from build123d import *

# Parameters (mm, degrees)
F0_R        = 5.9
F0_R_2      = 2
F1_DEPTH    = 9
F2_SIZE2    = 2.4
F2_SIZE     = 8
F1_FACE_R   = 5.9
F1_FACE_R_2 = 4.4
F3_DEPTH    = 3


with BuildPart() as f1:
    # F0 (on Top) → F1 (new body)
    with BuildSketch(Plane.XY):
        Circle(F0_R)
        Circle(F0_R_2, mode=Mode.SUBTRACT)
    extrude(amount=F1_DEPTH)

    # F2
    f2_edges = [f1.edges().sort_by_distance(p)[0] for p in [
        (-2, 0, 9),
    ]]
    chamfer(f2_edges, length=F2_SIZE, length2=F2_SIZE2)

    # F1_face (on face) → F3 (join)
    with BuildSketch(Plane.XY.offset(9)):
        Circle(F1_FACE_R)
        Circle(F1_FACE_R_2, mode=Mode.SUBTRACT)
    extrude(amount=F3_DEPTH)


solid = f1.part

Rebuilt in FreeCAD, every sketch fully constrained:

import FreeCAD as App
import Part
import Sketcher


def edges_at(feature, points):
    """Names of the edges that pass closest to the given points."""
    edges = feature.Shape.Edges
    near = lambda p: min(range(len(edges)), key=lambda i: edges[i].distToShape(Part.Vertex(*p))[0])
    return sorted({f"Edge{near(p) + 1}" for p in points})

doc = App.newDocument("Part")
params = doc.addObject("Spreadsheet::Sheet", "Params")
for row, (alias, value) in enumerate([
    ("sketch1_diameter", "4 mm"),
    ("sketch1_diameter2", "11.8 mm"),
    ("pad1_length", "9 mm"),
    ("chamfer_size", "8 mm"),
    ("chamfer_size2", "2.4 mm"),
    ("sketch2_diameter", "11.8 mm"),
    ("sketch2_diameter2", "8.8 mm"),
    ("pad2_length", "3 mm"),
], start=1):
    params.set(f"A{row}", alias)
    params.set(f"B{row}", "=" + value)
    params.setAlias(f"B{row}", alias)

body = doc.addObject("PartDesign::Body", "Body")

# Sketch on XY plane
sketch1 = doc.addObject("Sketcher::SketchObject", "Sketch")
body.addObject(sketch1)
sketch1.AttachmentSupport = (doc.XY_Plane, [""])
sketch1.MapMode = "FlatFace"
sketch1.addGeometry(Part.Circle(App.Vector(0, 0, 0), App.Vector(0, 0, 1), 5.9), False)
sketch1.addGeometry(Part.Circle(App.Vector(0, 0, 0), App.Vector(0, 0, 1), 2), False)
sketch1.addConstraint(Sketcher.Constraint("Coincident", 0, 3, -1, 1))
sketch1.addConstraint(Sketcher.Constraint("Coincident", 1, 3, -1, 1))
sketch1.addConstraint(Sketcher.Constraint("Diameter", 1, 4.0))
sketch1.addConstraint(Sketcher.Constraint("Diameter", 0, 11.8))
sketch1.setExpression("Constraints[2]", "Params.sketch1_diameter")
sketch1.setExpression("Constraints[3]", "Params.sketch1_diameter2")
pad1 = doc.addObject("PartDesign::Pad", "Pad")
body.addObject(pad1)
pad1.Profile = sketch1
pad1.setExpression("Length", "Params.pad1_length")
doc.recompute()

chamfer = doc.addObject("PartDesign::Chamfer", "Chamfer")
body.addObject(chamfer)
chamfer.Base = (pad1, edges_at(pad1, [(-2, 0, 9)]))
chamfer.ChamferType = "Two distances"
chamfer.setExpression("Size", "Params.chamfer_size")
chamfer.setExpression("Size2", "Params.chamfer_size2")

# Sketch on XY plane
sketch2 = doc.addObject("Sketcher::SketchObject", "Sketch001")
body.addObject(sketch2)
sketch2.AttachmentSupport = (doc.XY_Plane, [""])
sketch2.MapMode = "FlatFace"
sketch2.AttachmentOffset = App.Placement(App.Vector(0, 0, 9), App.Rotation())
sketch2.addGeometry(Part.Circle(App.Vector(0, 0, 0), App.Vector(0, 0, 1), 5.9), False)
sketch2.addGeometry(Part.Circle(App.Vector(0, 0, 0), App.Vector(0, 0, 1), 4.4), False)
sketch2.addConstraint(Sketcher.Constraint("Coincident", 0, 3, -1, 1))
sketch2.addConstraint(Sketcher.Constraint("Coincident", 1, 3, -1, 1))
sketch2.addConstraint(Sketcher.Constraint("Diameter", 0, 11.8))
sketch2.addConstraint(Sketcher.Constraint("Diameter", 1, 8.8))
sketch2.setExpression("Constraints[2]", "Params.sketch2_diameter")
sketch2.setExpression("Constraints[3]", "Params.sketch2_diameter2")
pad2 = doc.addObject("PartDesign::Pad", "Pad001")
body.addObject(pad2)
pad2.Profile = sketch2
pad2.setExpression("Length", "Params.pad2_length")

doc.recompute()
